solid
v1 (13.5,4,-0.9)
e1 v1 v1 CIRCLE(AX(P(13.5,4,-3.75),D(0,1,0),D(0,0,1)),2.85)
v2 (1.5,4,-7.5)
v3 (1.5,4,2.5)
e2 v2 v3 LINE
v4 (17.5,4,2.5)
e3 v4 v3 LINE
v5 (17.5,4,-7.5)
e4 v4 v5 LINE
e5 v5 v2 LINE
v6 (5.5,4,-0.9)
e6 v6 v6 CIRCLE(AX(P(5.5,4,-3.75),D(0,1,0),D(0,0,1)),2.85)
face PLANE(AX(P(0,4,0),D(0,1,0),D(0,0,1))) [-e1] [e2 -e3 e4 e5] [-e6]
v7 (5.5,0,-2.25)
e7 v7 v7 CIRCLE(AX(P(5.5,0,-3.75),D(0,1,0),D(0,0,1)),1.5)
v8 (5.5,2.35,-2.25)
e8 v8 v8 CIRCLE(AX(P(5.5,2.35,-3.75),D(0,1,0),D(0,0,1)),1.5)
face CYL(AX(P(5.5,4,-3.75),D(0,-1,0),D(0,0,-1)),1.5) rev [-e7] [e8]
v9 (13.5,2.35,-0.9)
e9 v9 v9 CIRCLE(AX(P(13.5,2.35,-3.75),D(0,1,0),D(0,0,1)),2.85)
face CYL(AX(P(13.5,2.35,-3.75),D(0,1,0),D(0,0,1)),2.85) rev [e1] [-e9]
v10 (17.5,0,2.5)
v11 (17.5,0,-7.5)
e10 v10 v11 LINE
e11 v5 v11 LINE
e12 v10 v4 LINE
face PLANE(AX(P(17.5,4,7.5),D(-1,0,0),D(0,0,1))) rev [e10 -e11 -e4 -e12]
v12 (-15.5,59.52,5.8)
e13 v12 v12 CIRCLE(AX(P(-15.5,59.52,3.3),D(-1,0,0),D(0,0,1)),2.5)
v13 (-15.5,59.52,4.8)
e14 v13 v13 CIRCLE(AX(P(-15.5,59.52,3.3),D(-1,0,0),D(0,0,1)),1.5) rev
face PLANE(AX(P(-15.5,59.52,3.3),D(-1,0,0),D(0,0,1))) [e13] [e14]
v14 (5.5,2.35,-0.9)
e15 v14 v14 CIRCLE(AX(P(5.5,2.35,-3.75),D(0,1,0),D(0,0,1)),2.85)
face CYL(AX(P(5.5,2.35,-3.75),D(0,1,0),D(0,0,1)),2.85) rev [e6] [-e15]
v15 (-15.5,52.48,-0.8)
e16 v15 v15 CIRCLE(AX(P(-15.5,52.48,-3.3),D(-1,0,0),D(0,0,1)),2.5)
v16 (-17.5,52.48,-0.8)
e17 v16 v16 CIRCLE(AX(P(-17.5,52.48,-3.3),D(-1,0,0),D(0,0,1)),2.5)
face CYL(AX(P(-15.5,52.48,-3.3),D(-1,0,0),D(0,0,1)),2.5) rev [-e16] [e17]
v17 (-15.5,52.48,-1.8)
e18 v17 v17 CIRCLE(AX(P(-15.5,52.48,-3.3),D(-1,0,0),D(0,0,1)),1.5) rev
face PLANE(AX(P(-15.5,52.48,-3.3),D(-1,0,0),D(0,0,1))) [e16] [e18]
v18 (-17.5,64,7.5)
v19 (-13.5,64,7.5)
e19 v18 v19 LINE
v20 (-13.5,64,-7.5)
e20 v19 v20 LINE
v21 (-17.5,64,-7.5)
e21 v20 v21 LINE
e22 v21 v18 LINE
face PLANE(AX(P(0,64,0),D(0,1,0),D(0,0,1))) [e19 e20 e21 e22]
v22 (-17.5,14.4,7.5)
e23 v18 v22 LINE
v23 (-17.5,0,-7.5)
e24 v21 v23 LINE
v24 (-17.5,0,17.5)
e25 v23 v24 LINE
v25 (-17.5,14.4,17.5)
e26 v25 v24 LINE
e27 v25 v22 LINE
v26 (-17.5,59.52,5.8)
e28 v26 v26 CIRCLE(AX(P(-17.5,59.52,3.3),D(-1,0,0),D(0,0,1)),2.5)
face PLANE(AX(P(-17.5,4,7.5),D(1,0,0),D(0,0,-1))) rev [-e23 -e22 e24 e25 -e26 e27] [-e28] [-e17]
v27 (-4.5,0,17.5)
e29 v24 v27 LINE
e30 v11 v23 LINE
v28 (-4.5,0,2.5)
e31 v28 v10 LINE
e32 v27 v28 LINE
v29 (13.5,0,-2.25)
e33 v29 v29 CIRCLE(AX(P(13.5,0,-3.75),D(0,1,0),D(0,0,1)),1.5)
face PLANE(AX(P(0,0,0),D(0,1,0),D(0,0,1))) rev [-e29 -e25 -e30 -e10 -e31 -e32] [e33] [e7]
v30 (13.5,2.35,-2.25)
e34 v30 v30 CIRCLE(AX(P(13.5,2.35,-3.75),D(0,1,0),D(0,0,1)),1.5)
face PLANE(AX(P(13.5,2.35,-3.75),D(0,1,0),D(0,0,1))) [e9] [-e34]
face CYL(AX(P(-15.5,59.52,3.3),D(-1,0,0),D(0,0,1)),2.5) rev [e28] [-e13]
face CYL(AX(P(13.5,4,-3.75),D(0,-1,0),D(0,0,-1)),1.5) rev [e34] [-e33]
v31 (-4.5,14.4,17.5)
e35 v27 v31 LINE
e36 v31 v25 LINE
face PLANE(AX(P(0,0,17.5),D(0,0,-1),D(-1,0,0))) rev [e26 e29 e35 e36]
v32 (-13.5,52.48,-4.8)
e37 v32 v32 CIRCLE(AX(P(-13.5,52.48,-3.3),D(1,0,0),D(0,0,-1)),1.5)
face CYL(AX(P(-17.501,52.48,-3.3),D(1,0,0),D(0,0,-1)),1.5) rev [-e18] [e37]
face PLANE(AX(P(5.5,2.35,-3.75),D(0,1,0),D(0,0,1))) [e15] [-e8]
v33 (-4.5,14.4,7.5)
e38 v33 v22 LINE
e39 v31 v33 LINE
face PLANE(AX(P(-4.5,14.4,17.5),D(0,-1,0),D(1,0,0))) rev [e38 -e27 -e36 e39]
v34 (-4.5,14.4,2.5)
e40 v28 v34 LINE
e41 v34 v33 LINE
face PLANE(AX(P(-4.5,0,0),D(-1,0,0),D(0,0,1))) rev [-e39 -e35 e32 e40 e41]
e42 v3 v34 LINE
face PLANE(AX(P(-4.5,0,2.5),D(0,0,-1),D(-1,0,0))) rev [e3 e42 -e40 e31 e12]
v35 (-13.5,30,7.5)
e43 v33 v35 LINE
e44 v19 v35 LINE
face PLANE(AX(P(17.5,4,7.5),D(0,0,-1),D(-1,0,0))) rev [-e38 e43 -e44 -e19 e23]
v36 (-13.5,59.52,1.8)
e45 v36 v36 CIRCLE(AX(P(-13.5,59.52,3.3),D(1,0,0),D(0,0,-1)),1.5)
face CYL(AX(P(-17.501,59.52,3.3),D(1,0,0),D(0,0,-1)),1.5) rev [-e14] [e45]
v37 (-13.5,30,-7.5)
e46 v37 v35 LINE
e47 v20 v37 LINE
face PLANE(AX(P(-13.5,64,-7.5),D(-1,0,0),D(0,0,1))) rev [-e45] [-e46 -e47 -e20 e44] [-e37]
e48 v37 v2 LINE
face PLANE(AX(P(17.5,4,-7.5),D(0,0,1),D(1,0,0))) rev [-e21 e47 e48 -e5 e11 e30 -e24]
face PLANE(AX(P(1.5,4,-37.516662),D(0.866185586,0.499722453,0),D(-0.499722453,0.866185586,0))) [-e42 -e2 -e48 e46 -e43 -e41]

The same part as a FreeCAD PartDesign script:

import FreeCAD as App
import Part
import Sketcher
from FreeCAD import Vector
Q = App.Units.Quantity

doc = App.newDocument("Part")
body = doc.addObject("PartDesign::Body", "Body")

# Sketch on XZ plane
sketch1 = doc.addObject("Sketcher::SketchObject", "Sketch")
body.addObject(sketch1)
sketch1.AttachmentSupport = (doc.XZ_Plane, [""])
sketch1.MapMode = "FlatFace"
sketch1.addGeometry([
    Part.LineSegment(Vector(-17.5, -7.5, 0), Vector(-17.5, 7.5, 0)),  # 0
    Part.LineSegment(Vector(-17.5, 7.5, 0), Vector(17.5, 7.5, 0)),  # 1
    Part.LineSegment(Vector(17.5, 7.5, 0), Vector(17.5, -7.5, 0)),  # 2
    Part.LineSegment(Vector(17.5, -7.5, 0), Vector(-17.5, -7.5, 0)),  # 3
    Part.Circle(Vector(5.5, -3.8, 0), Vector(0, 0, 1), 1.5),  # 4
    Part.Circle(Vector(13.5, -3.8, 0), Vector(0, 0, 1), 1.5),  # 5
], False)
sketch1.addConstraint([
    Sketcher.Constraint("Coincident", 0, 2, 1, 1),
    Sketcher.Constraint("Coincident", 1, 2, 2, 1),
    Sketcher.Constraint("Coincident", 2, 2, 3, 1),
    Sketcher.Constraint("Coincident", 3, 2, 0, 1),
    Sketcher.Constraint("Vertical", 0),
    Sketcher.Constraint("Horizontal", 1),
    Sketcher.Constraint("Vertical", 2),
    Sketcher.Constraint("Horizontal", 3),
    Sketcher.Constraint("Equal", 4, 5),
    Sketcher.Constraint("Symmetric", 0, 2, 2, 2, -1, 1),
    Sketcher.Constraint("Horizontal", 4, 3, 5, 3),
    Sketcher.Constraint("Diameter", 4, Q("3 mm")),
    Sketcher.Constraint("DistanceX", 1, 1, 1, 2, Q("35 mm")),
    Sketcher.Constraint("DistanceY", 0, 1, 0, 2, Q("15 mm")),
    Sketcher.Constraint("DistanceX", 4, 3, 5, 3, Q("8 mm")),
    Sketcher.Constraint("DistanceX", 0, 2, 4, 3, Q("23 mm")),
    Sketcher.Constraint("DistanceY", 4, 3, -1, 1, Q("3.75 mm")),
])
pad1 = doc.addObject("PartDesign::Pad", "Pad")
body.addObject(pad1)
pad1.Profile = sketch1
pad1.Length = 4
pad1.Reversed = True

# Sketch on XZ plane
sketch2 = doc.addObject("Sketcher::SketchObject", "Sketch001")
body.addObject(sketch2)
sketch2.AttachmentSupport = (doc.XZ_Plane, [""])
sketch2.MapMode = "FlatFace"
sketch2.AttachmentOffset = App.Placement(Vector(0, 0, -4), App.Rotation())
sketch2.addGeometry([
    Part.LineSegment(Vector(-17.5, -7.5, 0), Vector(-17.5, 7.5, 0)),
    Part.LineSegment(Vector(-17.5, 7.5, 0), Vector(-13.5, 7.5, 0)),
    Part.LineSegment(Vector(-13.5, 7.5, 0), Vector(-13.5, -7.5, 0)),
    Part.LineSegment(Vector(-13.5, -7.5, 0), Vector(-17.5, -7.5, 0)),
], False)
sketch2.addConstraint([
    Sketcher.Constraint("Coincident", 0, 2, 1, 1),
    Sketcher.Constraint("Coincident", 1, 2, 2, 1),
    Sketcher.Constraint("Coincident", 2, 2, 3, 1),
    Sketcher.Constraint("Coincident", 3, 2, 0, 1),
    Sketcher.Constraint("Vertical", 0),
    Sketcher.Constraint("Horizontal", 1),
    Sketcher.Constraint("Vertical", 2),
    Sketcher.Constraint("Horizontal", 3),
    Sketcher.Constraint("DistanceX", 1, 1, 1, 2, Q("4 mm")),
    Sketcher.Constraint("DistanceY", 0, 1, 0, 2, Q("15 mm")),
    Sketcher.Constraint("DistanceX", 0, 2, -1, 1, Q("17.5 mm")),
    Sketcher.Constraint("DistanceY", -1, 1, 0, 2, Q("7.5 mm")),
])
pad2 = doc.addObject("PartDesign::Pad", "Pad001")
body.addObject(pad2)
pad2.Profile = sketch2
pad2.Length = 60
pad2.Reversed = True

# Sketch on XY plane
sketch3 = doc.addObject("Sketcher::SketchObject", "Sketch002")
body.addObject(sketch3)
sketch3.AttachmentSupport = (doc.XY_Plane, [""])
sketch3.MapMode = "FlatFace"
sketch3.AttachmentOffset = App.Placement(Vector(0, 0, 7.5), App.Rotation())
sketch3.addGeometry([
    Part.LineSegment(Vector(-14, 30, 0), Vector(-14, 4, 0)),
    Part.LineSegment(Vector(-14, 4, 0), Vector(2, 4, 0)),
    Part.LineSegment(Vector(2, 4, 0), Vector(-14, 30, 0)),
], False)
sketch3.addConstraint([
    Sketcher.Constraint("Coincident", 0, 2, 1, 1),
    Sketcher.Constraint("Coincident", 1, 2, 2, 1),
    Sketcher.Constraint("Coincident", 2, 2, 0, 1),
    Sketcher.Constraint("Vertical", 0),
    Sketcher.Constraint("Horizontal", 1),
    Sketcher.Constraint("DistanceX", 1, 1, 1, 2, Q("15 mm")),
    Sketcher.Constraint("DistanceY", 0, 2, 0, 1, Q("26 mm")),
    Sketcher.Constraint("DistanceY", -1, 1, 0, 2, Q("4 mm")),
    Sketcher.Constraint("DistanceX", 0, 2, -1, 1, Q("13.5 mm")),
])
pad3 = doc.addObject("PartDesign::Pad", "Pad002")
body.addObject(pad3)
pad3.Profile = sketch3
pad3.Length = 15
pad3.Reversed = True

# Sketch on XZ plane
sketch4 = doc.addObject("Sketcher::SketchObject", "Sketch003")
body.addObject(sketch4)
sketch4.AttachmentSupport = (doc.XZ_Plane, [""])
sketch4.MapMode = "FlatFace"
sketch4.AttachmentOffset = App.Placement(Vector(0, 0, -4), App.Rotation())
sketch4.addGeometry([
    Part.Circle(Vector(5.5, -3.8, 0), Vector(0, 0, 1), 2.9),
    Part.Circle(Vector(13.5, -3.8, 0), Vector(0, 0, 1), 2.9),
], False)
sketch4.addConstraint([
    Sketcher.Constraint("Equal", 0, 1),
    Sketcher.Constraint("Horizontal", 0, 3, 1, 3),
    Sketcher.Constraint("Diameter", 0, Q("5.7 mm")),
    Sketcher.Constraint("DistanceX", 0, 3, 1, 3, Q("8 mm")),
    Sketcher.Constraint("DistanceX", -1, 1, 0, 3, Q("5.5 mm")),
    Sketcher.Constraint("DistanceY", 0, 3, -1, 1, Q("3.75 mm")),
])
pocket1 = doc.addObject("PartDesign::Pocket", "Pocket")
body.addObject(pocket1)
pocket1.Profile = sketch4
pocket1.Length = 1.65
pocket1.Reversed = True

# Sketch on YZ plane
sketch5 = doc.addObject("Sketcher::SketchObject", "Sketch004")
body.addObject(sketch5)
sketch5.AttachmentSupport = (doc.YZ_Plane, [""])
sketch5.MapMode = "FlatFace"
sketch5.AttachmentOffset = App.Placement(Vector(0, 0, 17.5), App.Rotation())
sketch5.addGeometry([
    Part.LineSegment(Vector(22, 8, 0), Vector(0, 8, 0)),
    Part.LineSegment(Vector(0, 8, 0), Vector(0, 2, 0)),
    Part.LineSegment(Vector(0, 2, 0), Vector(22, 2, 0)),
    Part.LineSegment(Vector(22, 2, 0), Vector(22, 8, 0)),
], False)
sketch5.addConstraint([
    Sketcher.Constraint("Coincident", 0, 2, 1, 1),
    Sketcher.Constraint("Coincident", 1, 2, 2, 1),
    Sketcher.Constraint("Coincident", 2, 2, 3, 1),
    Sketcher.Constraint("Coincident", 3, 2, 0, 1),
    Sketcher.Constraint("Horizontal", 0),
    Sketcher.Constraint("Vertical", 1),
    Sketcher.Constraint("Horizontal", 2),
    Sketcher.Constraint("Vertical", 3),
    Sketcher.Constraint("PointOnObject", 0, 2, -2),
    Sketcher.Constraint("DistanceX", 0, 2, 0, 1, Q("22 mm")),
    Sketcher.Constraint("DistanceY", 1, 2, 1, 1, Q("5 mm")),
    Sketcher.Constraint("DistanceY", -1, 1, 0, 2, Q("7.5 mm")),
])
pocket2 = doc.addObject("PartDesign::Pocket", "Pocket001")
body.addObject(pocket2)
pocket2.Profile = sketch5
pocket2.Length = 22

# Sketch on YZ plane
sketch6 = doc.addObject("Sketcher::SketchObject", "Sketch005")
body.addObject(sketch6)
sketch6.AttachmentSupport = (doc.YZ_Plane, [""])
sketch6.MapMode = "FlatFace"
sketch6.AttachmentOffset = App.Placement(Vector(0, 0, -13.5), App.Rotation())
sketch6.addGeometry(Part.Circle(Vector(59.5, 3.3, 0), Vector(0, 0, 1), 1.5), False)
sketch6.addConstraint([
    Sketcher.Constraint("Diameter", 0, Q("3 mm")),
    Sketcher.Constraint("DistanceY", -1, 1, 0, 3, Q("3.3 mm")),
    Sketcher.Constraint("DistanceX", -1, 1, 0, 3, Q("59.52 mm")),
])
pocket3 = doc.addObject("PartDesign::Pocket", "Pocket002")
body.addObject(pocket3)
pocket3.Profile = sketch6
pocket3.Type = "UpToFirst"

# Sketch on YZ plane
sketch7 = doc.addObject("Sketcher::SketchObject", "Sketch006")
body.addObject(sketch7)
sketch7.AttachmentSupport = (doc.YZ_Plane, [""])
sketch7.MapMode = "FlatFace"
sketch7.AttachmentOffset = App.Placement(Vector(0, 0, -13.5), App.Rotation())
sketch7.addGeometry(Part.Circle(Vector(52.5, -3.3, 0), Vector(0, 0, 1), 1.5), False)
sketch7.addConstraint([
    Sketcher.Constraint("Diameter", 0, Q("3 mm")),
    Sketcher.Constraint("DistanceY", 0, 3, -1, 1, Q("3.3 mm")),
    Sketcher.Constraint("DistanceX", -1, 1, 0, 3, Q("52.48 mm")),
])
pocket4 = doc.addObject("PartDesign::Pocket", "Pocket003")
body.addObject(pocket4)
pocket4.Profile = sketch7
pocket4.Type = "UpToFirst"

# Sketch on YZ plane
sketch8 = doc.addObject("Sketcher::SketchObject", "Sketch007")
body.addObject(sketch8)
sketch8.AttachmentSupport = (doc.YZ_Plane, [""])
sketch8.MapMode = "FlatFace"
sketch8.AttachmentOffset = App.Placement(Vector(0, 0, -17.5), App.Rotation())
sketch8.addGeometry([
    Part.Circle(Vector(52.5, -3.3, 0), Vector(0, 0, 1), 2.5),
    Part.Circle(Vector(59.5, 3.3, 0), Vector(0, 0, 1), 2.5),
], False)
sketch8.addConstraint([
    Sketcher.Constraint("Equal", 0, 1),
    Sketcher.Constraint("Diameter", 0, Q("5 mm")),
    Sketcher.Constraint("DistanceY", 0, 3, -1, 1, Q("3.3 mm")),
    Sketcher.Constraint("DistanceY", -1, 1, 1, 3, Q("3.3 mm")),
    Sketcher.Constraint("DistanceX", -1, 1, 0, 3, Q("52.48 mm")),
    Sketcher.Constraint("DistanceX", -1, 1, 1, 3, Q("59.52 mm")),
])
pocket5 = doc.addObject("PartDesign::Pocket", "Pocket004")
body.addObject(pocket5)
pocket5.Profile = sketch8
pocket5.Length = 2
pocket5.Reversed = True

# Sketch on XY plane
sketch9 = doc.addObject("Sketcher::SketchObject", "Sketch008")
body.addObject(sketch9)
sketch9.AttachmentSupport = (doc.XY_Plane, [""])
sketch9.MapMode = "FlatFace"
sketch9.AttachmentOffset = App.Placement(Vector(0, 0, 7.5), App.Rotation())
sketch9.addGeometry([
    Part.LineSegment(Vector(-18, 14, 0), Vector(-18, 0, 0)),
    Part.LineSegment(Vector(-18, 0, 0), Vector(-4, 0, 0)),
    Part.LineSegment(Vector(-4, 0, 0), Vector(-4, 14, 0)),
    Part.LineSegment(Vector(-4, 14, 0), Vector(-18, 14, 0)),
], False)
sketch9.addConstraint([
    Sketcher.Constraint("Coincident", 0, 2, 1, 1),
    Sketcher.Constraint("Coincident", 1, 2, 2, 1),
    Sketcher.Constraint("Coincident", 2, 2, 3, 1),
    Sketcher.Constraint("Coincident", 3, 2, 0, 1),
    Sketcher.Constraint("Vertical", 0),
    Sketcher.Constraint("Horizontal", 1),
    Sketcher.Constraint("Vertical", 2),
    Sketcher.Constraint("Horizontal", 3),
    Sketcher.Constraint("PointOnObject", 0, 2, -1),
    Sketcher.Constraint("DistanceX", 1, 1, 1, 2, Q("13 mm")),
    Sketcher.Constraint("DistanceY", 0, 2, 0, 1, Q("14.4 mm")),
    Sketcher.Constraint("DistanceX", 0, 2, -1, 1, Q("17.5 mm")),
])
pad4 = doc.addObject("PartDesign::Pad", "Pad003")
body.addObject(pad4)
pad4.Profile = sketch9
pad4.Length = 10

doc.recompute()
